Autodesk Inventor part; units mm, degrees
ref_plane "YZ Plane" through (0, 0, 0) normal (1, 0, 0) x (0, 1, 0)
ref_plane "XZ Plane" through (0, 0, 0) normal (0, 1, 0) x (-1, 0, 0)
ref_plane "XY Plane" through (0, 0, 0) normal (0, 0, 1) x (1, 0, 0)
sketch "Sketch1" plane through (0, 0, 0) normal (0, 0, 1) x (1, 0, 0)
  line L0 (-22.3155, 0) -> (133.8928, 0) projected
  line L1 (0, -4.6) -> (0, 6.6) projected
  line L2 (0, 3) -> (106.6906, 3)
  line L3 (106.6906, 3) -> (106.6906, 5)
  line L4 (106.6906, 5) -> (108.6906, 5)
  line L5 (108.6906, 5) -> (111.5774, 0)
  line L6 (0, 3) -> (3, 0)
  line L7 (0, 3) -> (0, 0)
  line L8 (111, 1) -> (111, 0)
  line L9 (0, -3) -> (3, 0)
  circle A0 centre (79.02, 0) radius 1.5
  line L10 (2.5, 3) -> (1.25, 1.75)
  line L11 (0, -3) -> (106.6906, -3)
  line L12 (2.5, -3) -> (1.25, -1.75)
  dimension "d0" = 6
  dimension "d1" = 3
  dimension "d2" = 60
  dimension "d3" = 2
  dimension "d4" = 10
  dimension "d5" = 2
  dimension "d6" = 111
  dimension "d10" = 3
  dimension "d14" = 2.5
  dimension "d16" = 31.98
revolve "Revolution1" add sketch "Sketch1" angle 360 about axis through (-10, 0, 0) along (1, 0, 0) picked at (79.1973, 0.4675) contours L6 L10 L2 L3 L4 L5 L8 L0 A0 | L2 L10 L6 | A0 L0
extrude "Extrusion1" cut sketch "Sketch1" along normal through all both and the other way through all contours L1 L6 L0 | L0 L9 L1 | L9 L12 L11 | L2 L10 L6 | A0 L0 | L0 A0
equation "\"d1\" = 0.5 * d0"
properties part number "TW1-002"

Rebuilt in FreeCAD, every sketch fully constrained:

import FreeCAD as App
import Part
import Sketcher
from FreeCAD import Vector
Q = App.Units.Quantity


def add_polygon(sketch, points):
    """Adds a closed chain of lines whose ends are joined by coincident constraints."""
    first, n = sketch.GeometryCount, len(points)
    for a, b in zip(points, points[1:] + points[:1]):
        sketch.addGeometry(Part.LineSegment(App.Vector(*a, 0), App.Vector(*b, 0)), False)
    for i in range(n):
        sketch.addConstraint(Sketcher.Constraint("Coincident", first + i, 2, first + (i + 1) % n, 1))

doc = App.newDocument("Part")
body = doc.addObject("PartDesign::Body", "Body")

# Sketch on XY plane
sketch1 = body.newObject("Sketcher::SketchObject", "Sketch")
sketch1.AttachmentSupport = (doc.getObject("XY_Plane"), [""])
sketch1.MapMode = "FlatFace"
add_polygon(sketch1, [(3, 0), (111, 0), (111, 1), (108.7, 5), (106.7, 5), (106.7, 3), (0, 3)])  # lines 0-6
sketch1.addConstraint(Sketcher.Constraint("Horizontal", 0))
sketch1.addConstraint(Sketcher.Constraint("Vertical", 1))
sketch1.addConstraint(Sketcher.Constraint("Horizontal", 3))
sketch1.addConstraint(Sketcher.Constraint("Vertical", 4))
sketch1.addConstraint(Sketcher.Constraint("Horizontal", 5))
sketch1.addConstraint(Sketcher.Constraint("PointOnObject", 0, 2, -1))
sketch1.addConstraint(Sketcher.Constraint("PointOnObject", 5, 2, -2))
sketch1.addConstraint(Sketcher.Constraint("Equal", 3, 4))
sketch1.addConstraint(Sketcher.Constraint("DistanceX", 3, 2, 3, 1, Q("2 mm")))
sketch1.addConstraint(Sketcher.Constraint("DistanceX", -1, 1, 0, 2, Q("111 mm")))
sketch1.addConstraint(Sketcher.Constraint("DistanceY", -1, 1, 4, 2, Q("3 mm")))
sketch1.addConstraint(Sketcher.Constraint("DistanceX", -1, 1, 6, 2, Q("3 mm")))
sketch1.addConstraint(Sketcher.Constraint("DistanceY", 1, 2, 4, 2, Q("2 mm")))
sketch1.addConstraint(Sketcher.Constraint("Angle", 2, Q("120.0004 deg")))
revolution = body.newObject("PartDesign::Revolution", "Revolution")
revolution.Profile = sketch1
revolution.ReferenceAxis = (sketch1, ["H_Axis"])
revolution.Angle = 360

# Sketch on XY plane
sketch2 = body.newObject("Sketcher::SketchObject", "Sketch001")
sketch2.AttachmentSupport = (doc.getObject("XY_Plane"), [""])
sketch2.MapMode = "FlatFace"
add_polygon(sketch2, [(0, 3), (0, -3), (2.5, -3), (1.2, -1.8), (3, 0), (1.2, 1.8), (2.5, 3)])  # lines 0-6
sketch2.addGeometry(Part.Circle(Vector(79, 0, 0), Vector(0, 0, 1), 1.5), False)  # 7
sketch2.addConstraint(Sketcher.Constraint("Vertical", 0))
sketch2.addConstraint(Sketcher.Constraint("Horizontal", 1))
sketch2.addConstraint(Sketcher.Constraint("Horizontal", 6))
sketch2.addConstraint(Sketcher.Constraint("Symmetric", 0, 2, 6, 2, -1, 1))
sketch2.addConstraint(Sketcher.Constraint("Symmetric", 2, 2, 4, 2, -1))
sketch2.addConstraint(Sketcher.Constraint("PointOnObject", 7, 3, -1))
sketch2.addConstraint(Sketcher.Constraint("PointOnObject", 3, 2, -1))
sketch2.addConstraint(Sketcher.Constraint("Perpendicular", 2, 3))
sketch2.addConstraint(Sketcher.Constraint("Perpendicular", 3, 4))
sketch2.addConstraint(Sketcher.Constraint("Perpendicular", 4, 5))
sketch2.addConstraint(Sketcher.Constraint("Diameter", 7, Q("3 mm")))
sketch2.addConstraint(Sketcher.Constraint("DistanceY", 0, 2, 0, 1, Q("6 mm")))
sketch2.addConstraint(Sketcher.Constraint("DistanceX", 1, 1, 1, 2, Q("2.5 mm")))
sketch2.addConstraint(Sketcher.Constraint("DistanceX", -1, 1, 3, 2, Q("3 mm")))
sketch2.addConstraint(Sketcher.Constraint("DistanceX", -1, 1, 7, 3, Q("79.02 mm")))
pocket1 = body.newObject("PartDesign::Pocket", "Pocket")
pocket1.Profile = sketch2
pocket1.Type = "ThroughAll"
pocket1.Midplane = True

doc.recompute()
